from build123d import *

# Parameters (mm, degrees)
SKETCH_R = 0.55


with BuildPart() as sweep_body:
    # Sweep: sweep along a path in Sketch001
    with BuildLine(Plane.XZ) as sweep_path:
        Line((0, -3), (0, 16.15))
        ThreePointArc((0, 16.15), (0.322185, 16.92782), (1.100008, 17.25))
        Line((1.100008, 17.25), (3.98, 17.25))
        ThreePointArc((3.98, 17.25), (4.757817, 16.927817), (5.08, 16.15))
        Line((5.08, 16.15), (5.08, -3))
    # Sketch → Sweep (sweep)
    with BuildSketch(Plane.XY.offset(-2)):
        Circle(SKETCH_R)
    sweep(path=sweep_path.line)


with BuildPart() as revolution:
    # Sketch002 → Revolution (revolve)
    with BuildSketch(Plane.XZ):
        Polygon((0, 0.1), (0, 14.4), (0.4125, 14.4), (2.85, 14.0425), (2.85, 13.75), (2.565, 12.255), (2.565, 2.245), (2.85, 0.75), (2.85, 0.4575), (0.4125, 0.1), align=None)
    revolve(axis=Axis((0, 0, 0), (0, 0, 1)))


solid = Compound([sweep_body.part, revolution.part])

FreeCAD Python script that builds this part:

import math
import FreeCAD as App
import Part
import Sketcher

V = App.Vector

doc = App.newDocument("Part")
body = doc.addObject("PartDesign::Body", "Body")

# Sketch on XY plane
sketch1 = doc.addObject("Sketcher::SketchObject", "Sketch")
body.addObject(sketch1)
sketch1.AttachmentSupport = (doc.XY_Plane, [""])
sketch1.MapMode = "FlatFace"
sketch1.AttachmentOffset = App.Placement(V(0, 0, -2), App.Rotation())
sketch1.addGeometry(Part.Circle(V(0, 0, 0), V(0, 0, 1), 0.55), False)
sketch1.addConstraint(Sketcher.Constraint("Coincident", 0, 3, -1, 1))
sketch1.addConstraint(Sketcher.Constraint("Diameter", 0, 1.1))

# Sketch on XZ plane
sketch2 = doc.addObject("Sketcher::SketchObject", "Sketch001")
body.addObject(sketch2)
sketch2.AttachmentSupport = (doc.XZ_Plane, [""])
sketch2.MapMode = "FlatFace"
sketch2.addGeometry(Part.LineSegment(V(0, -3, 0), V(0, 16.15, 0)), False)
sketch2.addGeometry(Part.ArcOfCircle(Part.Circle(V(1.1, 16.15, 0), V(0, 0, 1), 1.1), math.radians(89.999576), math.radians(180.000007)), False)
sketch2.addGeometry(Part.LineSegment(V(1.100008, 17.25, 0), V(3.98, 17.25, 0)), False)
sketch2.addGeometry(Part.ArcOfCircle(Part.Circle(V(3.979998, 16.149998, 0), V(0, 0, 1), 1.100002), math.radians(0.000082), math.radians(89.999918)), False)
sketch2.addGeometry(Part.LineSegment(V(5.08, 16.15, 0), V(5.08, -3, 0)), False)
sketch2.addConstraint(Sketcher.Constraint("Tangent", 0, 2, 1, 2))
sketch2.addConstraint(Sketcher.Constraint("Coincident", 1, 1, 2, 1))
sketch2.addConstraint(Sketcher.Constraint("Tangent", 2, 2, 3, 2))
sketch2.addConstraint(Sketcher.Constraint("Tangent", 3, 1, 4, 1))
sketch2.addConstraint(Sketcher.Constraint("Vertical", 0))
sketch2.addConstraint(Sketcher.Constraint("Horizontal", 2))
sketch2.addConstraint(Sketcher.Constraint("Vertical", 4))
sketch2.addConstraint(Sketcher.Constraint("Equal", 1, 3))
sketch2.addConstraint(Sketcher.Constraint("PointOnObject", 0, 1, -2))
sketch2.addConstraint(Sketcher.Constraint("Horizontal", 0, 1, 4, 2))
sketch2.addConstraint(Sketcher.Constraint("Radius", 1, 1.1))
sketch2.addConstraint(Sketcher.Constraint("DistanceY", 0, 1, -1, 1, 3.0))
sketch2.addConstraint(Sketcher.Constraint("DistanceY", 0, 1, 0, 2, 19.15))
sketch2.addConstraint(Sketcher.Constraint("DistanceX", -1, 1, 3, 3, 3.979998))
sketch2.addConstraint(Sketcher.Constraint("DistanceX", 2, 1, 2, 2, 2.879992))
doc.recompute()

additivepipe = doc.addObject("PartDesign::AdditivePipe", "AdditivePipe")
body.addObject(additivepipe)
additivepipe.Profile = sketch1
additivepipe.Spine = (sketch2, ["Edge1", "Edge2", "Edge3", "Edge4", "Edge5"])
body2 = doc.addObject("PartDesign::Body", "Body001")

# Sketch on XZ plane
sketch3 = doc.addObject("Sketcher::SketchObject", "Sketch002")
body2.addObject(sketch3)
sketch3.AttachmentSupport = (doc.getObject("XZ_Plane001"), [""])
sketch3.MapMode = "FlatFace"
sketch3.addGeometry(Part.LineSegment(V(0, 14.4, 0), V(0, 0.1, 0)), False)
sketch3.addGeometry(Part.LineSegment(V(0, 0.1, 0), V(0.4125, 0.1, 0)), False)
sketch3.addGeometry(Part.LineSegment(V(0.4125, 0.1, 0), V(2.85, 0.4575, 0)), False)
sketch3.addGeometry(Part.LineSegment(V(2.85, 0.4575, 0), V(2.85, 0.75, 0)), False)
sketch3.addGeometry(Part.LineSegment(V(2.85, 0.75, 0), V(2.565, 2.245, 0)), False)
sketch3.addGeometry(Part.LineSegment(V(2.565, 2.245, 0), V(2.565, 12.255, 0)), False)
sketch3.addGeometry(Part.LineSegment(V(2.565, 12.255, 0), V(2.85, 13.75, 0)), False)
sketch3.addGeometry(Part.LineSegment(V(2.85, 13.75, 0), V(2.85, 14.0425, 0)), False)
sketch3.addGeometry(Part.LineSegment(V(2.85, 14.0425, 0), V(0.4125, 14.4, 0)), False)
sketch3.addGeometry(Part.LineSegment(V(0.4125, 14.4, 0), V(0, 14.4, 0)), False)
sketch3.addConstraint(Sketcher.Constraint("Coincident", 0, 2, 1, 1))
sketch3.addConstraint(Sketcher.Constraint("Coincident", 1, 2, 2, 1))
sketch3.addConstraint(Sketcher.Constraint("Coincident", 2, 2, 3, 1))
sketch3.addConstraint(Sketcher.Constraint("Coincident", 3, 2, 4, 1))
sketch3.addConstraint(Sketcher.Constraint("Coincident", 4, 2, 5, 1))
sketch3.addConstraint(Sketcher.Constraint("Coincident", 5, 2, 6, 1))
sketch3.addConstraint(Sketcher.Constraint("Coincident", 6, 2, 7, 1))
sketch3.addConstraint(Sketcher.Constraint("Coincident", 7, 2, 8, 1))
sketch3.addConstraint(Sketcher.Constraint("Coincident", 8, 2, 9, 1))
sketch3.addConstraint(Sketcher.Constraint("Coincident", 9, 2, 0, 1))
sketch3.addConstraint(Sketcher.Constraint("Vertical", 0))
sketch3.addConstraint(Sketcher.Constraint("Horizontal", 1))
sketch3.addConstraint(Sketcher.Constraint("Vertical", 3))
sketch3.addConstraint(Sketcher.Constraint("Vertical", 5))
sketch3.addConstraint(Sketcher.Constraint("Vertical", 7))
sketch3.addConstraint(Sketcher.Constraint("Horizontal", 9))
sketch3.addConstraint(Sketcher.Constraint("PointOnObject", 0, 2, -2))
sketch3.addConstraint(Sketcher.Constraint("Vertical", 3, 2, 6, 2))
sketch3.addConstraint(Sketcher.Constraint("Vertical", 1, 2, 8, 2))
sketch3.addConstraint(Sketcher.Constraint("Equal", 3, 7))
sketch3.addConstraint(Sketcher.Constraint("Equal", 4, 6))
sketch3.addConstraint(Sketcher.Constraint("Equal", 2, 8))
sketch3.addConstraint(Sketcher.Constraint("DistanceY", 0, 2, 0, 1, 14.3))
sketch3.addConstraint(Sketcher.Constraint("DistanceY", 3, 2, 6, 2, 13.0))
sketch3.addConstraint(Sketcher.Constraint("DistanceY", 5, 1, 5, 2, 10.01))
sketch3.addConstraint(Sketcher.Constraint("DistanceY", -1, 1, 0, 2, 0.1))
sketch3.addConstraint(Sketcher.Constraint("DistanceX", -1, 1, 2, 2, 2.85))
sketch3.addConstraint(Sketcher.Constraint("DistanceX", 1, 1, 1, 2, 0.4125))
sketch3.addConstraint(Sketcher.Constraint("DistanceY", 3, 1, 3, 2, 0.2925))
sketch3.addConstraint(Sketcher.Constraint("DistanceX", -1, 1, 4, 2, 2.565))
revolution = doc.addObject("PartDesign::Revolution", "Revolution")
body2.addObject(revolution)
revolution.Profile = sketch3
revolution.ReferenceAxis = (sketch3, ["V_Axis"])
revolution.Angle = 360

doc.recompute()
